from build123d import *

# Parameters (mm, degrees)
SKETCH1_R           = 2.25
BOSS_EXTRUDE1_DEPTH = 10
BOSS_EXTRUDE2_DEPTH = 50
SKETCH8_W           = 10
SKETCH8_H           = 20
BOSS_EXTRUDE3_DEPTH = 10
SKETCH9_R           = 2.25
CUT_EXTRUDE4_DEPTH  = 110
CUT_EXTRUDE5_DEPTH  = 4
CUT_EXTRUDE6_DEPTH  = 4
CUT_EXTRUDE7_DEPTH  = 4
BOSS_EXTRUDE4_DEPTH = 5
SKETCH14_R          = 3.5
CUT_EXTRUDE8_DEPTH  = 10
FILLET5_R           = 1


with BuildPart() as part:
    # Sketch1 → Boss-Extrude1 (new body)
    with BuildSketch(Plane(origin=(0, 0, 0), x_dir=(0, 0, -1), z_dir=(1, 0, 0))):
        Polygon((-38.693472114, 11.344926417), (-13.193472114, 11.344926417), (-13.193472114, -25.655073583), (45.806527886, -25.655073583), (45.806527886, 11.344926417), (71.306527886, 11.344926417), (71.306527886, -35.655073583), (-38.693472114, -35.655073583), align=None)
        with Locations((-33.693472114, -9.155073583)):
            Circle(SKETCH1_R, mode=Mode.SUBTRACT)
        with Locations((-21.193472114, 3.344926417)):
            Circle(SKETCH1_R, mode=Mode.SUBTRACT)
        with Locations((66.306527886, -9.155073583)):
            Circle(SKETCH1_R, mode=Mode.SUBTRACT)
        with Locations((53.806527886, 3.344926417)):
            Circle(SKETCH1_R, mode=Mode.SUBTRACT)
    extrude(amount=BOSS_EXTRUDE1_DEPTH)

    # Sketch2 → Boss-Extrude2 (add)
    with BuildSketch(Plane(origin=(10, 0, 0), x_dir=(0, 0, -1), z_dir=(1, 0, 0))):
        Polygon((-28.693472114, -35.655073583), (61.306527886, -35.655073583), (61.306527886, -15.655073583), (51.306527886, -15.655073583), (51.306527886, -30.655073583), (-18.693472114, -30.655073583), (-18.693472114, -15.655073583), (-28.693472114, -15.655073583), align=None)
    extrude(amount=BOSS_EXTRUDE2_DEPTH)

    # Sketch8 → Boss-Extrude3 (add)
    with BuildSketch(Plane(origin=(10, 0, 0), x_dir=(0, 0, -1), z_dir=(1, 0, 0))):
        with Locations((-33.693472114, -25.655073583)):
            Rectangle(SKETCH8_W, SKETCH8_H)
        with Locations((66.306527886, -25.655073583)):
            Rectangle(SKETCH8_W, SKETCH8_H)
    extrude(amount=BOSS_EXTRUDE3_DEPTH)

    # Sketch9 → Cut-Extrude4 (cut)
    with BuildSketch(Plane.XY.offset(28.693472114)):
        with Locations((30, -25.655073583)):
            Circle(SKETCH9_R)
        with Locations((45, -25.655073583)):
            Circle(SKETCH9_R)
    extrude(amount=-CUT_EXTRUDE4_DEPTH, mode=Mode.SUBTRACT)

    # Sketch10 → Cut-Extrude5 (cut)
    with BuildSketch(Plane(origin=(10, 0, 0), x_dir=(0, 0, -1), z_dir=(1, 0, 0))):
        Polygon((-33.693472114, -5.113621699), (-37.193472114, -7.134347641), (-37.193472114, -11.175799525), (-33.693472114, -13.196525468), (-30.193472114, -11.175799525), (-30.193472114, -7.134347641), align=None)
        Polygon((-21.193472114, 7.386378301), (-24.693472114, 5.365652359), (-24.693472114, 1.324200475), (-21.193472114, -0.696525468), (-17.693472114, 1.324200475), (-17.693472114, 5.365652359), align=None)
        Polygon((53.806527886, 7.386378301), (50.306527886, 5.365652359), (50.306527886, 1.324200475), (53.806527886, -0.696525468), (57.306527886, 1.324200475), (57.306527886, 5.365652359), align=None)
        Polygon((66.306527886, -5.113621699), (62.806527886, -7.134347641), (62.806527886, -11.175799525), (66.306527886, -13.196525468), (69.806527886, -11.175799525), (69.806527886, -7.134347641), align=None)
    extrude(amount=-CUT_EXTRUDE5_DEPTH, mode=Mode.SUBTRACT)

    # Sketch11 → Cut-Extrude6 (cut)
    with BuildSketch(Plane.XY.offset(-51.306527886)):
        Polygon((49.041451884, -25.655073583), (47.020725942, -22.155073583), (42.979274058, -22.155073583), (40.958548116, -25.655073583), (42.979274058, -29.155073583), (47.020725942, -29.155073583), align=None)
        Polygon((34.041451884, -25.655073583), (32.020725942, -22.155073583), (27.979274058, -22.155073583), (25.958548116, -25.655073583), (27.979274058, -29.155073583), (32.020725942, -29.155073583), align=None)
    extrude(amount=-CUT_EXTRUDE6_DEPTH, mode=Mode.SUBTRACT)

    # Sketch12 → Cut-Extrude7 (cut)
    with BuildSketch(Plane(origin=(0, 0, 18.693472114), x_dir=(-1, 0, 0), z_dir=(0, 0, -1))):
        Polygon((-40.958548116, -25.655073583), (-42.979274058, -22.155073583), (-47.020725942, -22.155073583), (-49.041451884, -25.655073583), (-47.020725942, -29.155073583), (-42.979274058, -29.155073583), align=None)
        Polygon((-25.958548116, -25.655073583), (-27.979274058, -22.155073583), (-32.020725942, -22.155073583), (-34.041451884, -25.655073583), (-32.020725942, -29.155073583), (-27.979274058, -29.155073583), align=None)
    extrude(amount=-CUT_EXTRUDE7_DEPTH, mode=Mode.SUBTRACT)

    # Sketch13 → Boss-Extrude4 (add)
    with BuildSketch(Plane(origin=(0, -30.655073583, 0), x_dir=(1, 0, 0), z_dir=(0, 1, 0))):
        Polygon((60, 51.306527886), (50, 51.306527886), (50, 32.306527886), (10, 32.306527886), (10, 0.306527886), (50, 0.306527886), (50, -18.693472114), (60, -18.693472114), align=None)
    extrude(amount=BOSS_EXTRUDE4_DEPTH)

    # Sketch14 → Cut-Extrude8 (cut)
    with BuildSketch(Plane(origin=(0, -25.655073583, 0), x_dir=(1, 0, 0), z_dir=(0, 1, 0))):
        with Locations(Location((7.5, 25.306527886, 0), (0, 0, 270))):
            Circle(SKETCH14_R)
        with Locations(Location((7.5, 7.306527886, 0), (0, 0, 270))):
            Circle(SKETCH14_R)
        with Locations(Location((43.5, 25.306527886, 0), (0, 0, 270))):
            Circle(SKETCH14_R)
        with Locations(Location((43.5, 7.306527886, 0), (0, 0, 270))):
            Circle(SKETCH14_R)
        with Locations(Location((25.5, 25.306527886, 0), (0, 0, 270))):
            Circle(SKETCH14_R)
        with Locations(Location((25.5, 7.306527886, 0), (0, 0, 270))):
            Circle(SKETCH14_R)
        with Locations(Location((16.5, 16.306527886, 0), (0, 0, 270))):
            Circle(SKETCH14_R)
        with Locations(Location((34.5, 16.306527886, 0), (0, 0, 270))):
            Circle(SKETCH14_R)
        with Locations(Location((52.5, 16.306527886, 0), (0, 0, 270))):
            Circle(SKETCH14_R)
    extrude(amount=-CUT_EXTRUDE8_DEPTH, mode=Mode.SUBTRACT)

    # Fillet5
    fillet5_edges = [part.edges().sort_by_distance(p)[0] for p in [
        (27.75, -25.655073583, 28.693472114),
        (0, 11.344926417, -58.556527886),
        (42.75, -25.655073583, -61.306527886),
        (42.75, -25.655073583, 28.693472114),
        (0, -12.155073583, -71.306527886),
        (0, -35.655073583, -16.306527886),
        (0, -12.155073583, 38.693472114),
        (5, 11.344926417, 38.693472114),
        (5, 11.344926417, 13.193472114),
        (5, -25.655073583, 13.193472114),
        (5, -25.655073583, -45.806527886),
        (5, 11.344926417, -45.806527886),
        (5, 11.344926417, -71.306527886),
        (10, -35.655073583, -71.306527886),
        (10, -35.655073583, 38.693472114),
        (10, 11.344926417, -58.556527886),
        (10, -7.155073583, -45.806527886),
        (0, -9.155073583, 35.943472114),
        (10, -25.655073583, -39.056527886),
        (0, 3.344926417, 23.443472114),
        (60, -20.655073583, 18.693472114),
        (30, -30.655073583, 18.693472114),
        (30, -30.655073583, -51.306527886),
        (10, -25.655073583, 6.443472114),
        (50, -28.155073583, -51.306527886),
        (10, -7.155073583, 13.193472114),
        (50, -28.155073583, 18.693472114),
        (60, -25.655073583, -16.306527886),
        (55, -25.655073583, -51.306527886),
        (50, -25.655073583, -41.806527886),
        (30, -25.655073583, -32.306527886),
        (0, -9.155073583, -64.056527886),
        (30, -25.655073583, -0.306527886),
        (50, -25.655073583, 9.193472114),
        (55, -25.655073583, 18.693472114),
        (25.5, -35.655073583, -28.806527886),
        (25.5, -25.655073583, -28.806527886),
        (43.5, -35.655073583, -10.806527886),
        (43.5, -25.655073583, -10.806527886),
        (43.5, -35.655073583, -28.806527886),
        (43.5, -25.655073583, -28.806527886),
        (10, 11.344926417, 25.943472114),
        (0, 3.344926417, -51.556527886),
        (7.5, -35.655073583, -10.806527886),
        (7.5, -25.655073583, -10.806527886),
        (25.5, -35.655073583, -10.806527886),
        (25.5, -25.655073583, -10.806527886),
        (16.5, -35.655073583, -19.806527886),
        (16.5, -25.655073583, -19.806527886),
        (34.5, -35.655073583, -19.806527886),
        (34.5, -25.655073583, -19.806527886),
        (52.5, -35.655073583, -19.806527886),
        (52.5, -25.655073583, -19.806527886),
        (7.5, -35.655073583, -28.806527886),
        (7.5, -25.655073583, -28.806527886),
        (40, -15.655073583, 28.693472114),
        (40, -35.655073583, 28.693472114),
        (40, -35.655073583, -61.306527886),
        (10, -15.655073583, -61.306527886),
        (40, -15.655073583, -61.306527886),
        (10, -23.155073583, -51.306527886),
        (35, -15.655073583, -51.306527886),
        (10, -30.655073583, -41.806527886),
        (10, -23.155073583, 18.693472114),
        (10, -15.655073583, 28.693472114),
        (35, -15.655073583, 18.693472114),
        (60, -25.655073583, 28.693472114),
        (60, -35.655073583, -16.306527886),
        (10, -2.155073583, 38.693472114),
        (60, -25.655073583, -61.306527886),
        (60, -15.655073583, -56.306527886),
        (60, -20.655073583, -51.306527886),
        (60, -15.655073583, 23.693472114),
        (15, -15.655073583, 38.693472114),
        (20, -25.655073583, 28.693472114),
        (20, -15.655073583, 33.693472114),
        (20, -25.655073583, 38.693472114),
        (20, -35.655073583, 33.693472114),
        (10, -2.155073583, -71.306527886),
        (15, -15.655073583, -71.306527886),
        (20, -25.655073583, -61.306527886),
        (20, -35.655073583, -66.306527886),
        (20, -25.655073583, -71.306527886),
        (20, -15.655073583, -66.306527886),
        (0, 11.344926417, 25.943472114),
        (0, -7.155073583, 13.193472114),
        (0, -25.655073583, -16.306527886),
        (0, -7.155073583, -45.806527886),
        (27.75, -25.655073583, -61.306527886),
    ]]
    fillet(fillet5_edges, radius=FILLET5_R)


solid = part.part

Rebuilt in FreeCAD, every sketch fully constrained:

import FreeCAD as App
import Part
import Sketcher
Q = App.Units.Quantity


def edges_at(feature, points):
    """Names of the edges that pass closest to the given points."""
    edges = feature.Shape.Edges
    near = lambda p: min(range(len(edges)), key=lambda i: edges[i].distToShape(Part.Vertex(*p))[0])
    return sorted({f"Edge{near(p) + 1}" for p in points})

doc = App.newDocument("Part")
params = doc.addObject("Spreadsheet::Sheet", "Params")
for row, (alias, value) in enumerate([
    ("sketch1_diameter", "4.5 mm"),
    ("sketch1_width", "47 mm"),
    ("sketch1_width2", "37 mm"),
    ("sketch1_height", "110 mm"),
    ("sketch1_height2", "59 mm"),
    ("pad1_length", "10 mm"),
    ("sketch2_width", "20 mm"),
    ("sketch2_width2", "15 mm"),
    ("sketch2_height", "90 mm"),
    ("sketch2_height2", "10 mm"),
    ("pad2_length", "50 mm"),
    ("sketch3_width", "20 mm"),
    ("sketch3_height", "10 mm"),
    ("pad3_length", "10 mm"),
    ("sketch4_diameter", "4.5 mm"),
    ("pocket1_length", "110 mm"),
    ("pocket2_length", "4 mm"),
    ("pocket3_length", "4 mm"),
    ("pocket4_length", "4 mm"),
    ("sketch8_width", "10 mm"),
    ("sketch8_width2", "40 mm"),
    ("sketch8_height", "19 mm"),
    ("sketch8_height2", "32 mm"),
    ("pad4_length", "5 mm"),
    ("sketch9_diameter", "7 mm"),
    ("pocket5_length", "10 mm"),
    ("fillet_radius", "1 mm"),
], start=1):
    params.set(f"A{row}", alias)
    params.set(f"B{row}", "=" + value)
    params.setAlias(f"B{row}", alias)

body = doc.addObject("PartDesign::Body", "Body")

# Sketch on YZ plane
sketch1 = body.newObject("Sketcher::SketchObject", "Sketch")
sketch1.AttachmentSupport = (doc.getObject("YZ_Plane"), [""])
sketch1.MapMode = "FlatFace"
sketch1.addGeometry(Part.LineSegment(App.Vector(11.3, 13.2, 0), App.Vector(11.3, 38.7, 0)), False)
sketch1.addGeometry(Part.LineSegment(App.Vector(11.3, 38.7, 0), App.Vector(-35.7, 38.7, 0)), False)
sketch1.addGeometry(Part.LineSegment(App.Vector(-35.7, 38.7, 0), App.Vector(-35.7, -71.3, 0)), False)
sketch1.addGeometry(Part.LineSegment(App.Vector(-35.7, -71.3, 0), App.Vector(11.3, -71.3, 0)), False)
sketch1.addGeometry(Part.LineSegment(App.Vector(11.3, -71.3, 0), App.Vector(11.3, -45.8, 0)), False)
sketch1.addGeometry(Part.LineSegment(App.Vector(11.3, -45.8, 0), App.Vector(-25.7, -45.8, 0)), False)
sketch1.addGeometry(Part.LineSegment(App.Vector(-25.7, -45.8, 0), App.Vector(-25.7, 13.2, 0)), False)
sketch1.addGeometry(Part.LineSegment(App.Vector(-25.7, 13.2, 0), App.Vector(11.3, 13.2, 0)), False)
sketch1.addGeometry(Part.Circle(App.Vector(-9.2, -66.3, 0), App.Vector(0, 0, 1), 2.2), False)
sketch1.addGeometry(Part.Circle(App.Vector(-9.2, 33.7, 0), App.Vector(0, 0, 1), 2.2), False)
sketch1.addGeometry(Part.Circle(App.Vector(3.3, -53.8, 0), App.Vector(0, 0, 1), 2.2), False)
sketch1.addGeometry(Part.Circle(App.Vector(3.3, 21.2, 0), App.Vector(0, 0, 1), 2.2), False)
sketch1.addConstraint(Sketcher.Constraint("Coincident", 0, 2, 1, 1))
sketch1.addConstraint(Sketcher.Constraint("Coincident", 1, 2, 2, 1))
sketch1.addConstraint(Sketcher.Constraint("Coincident", 2, 2, 3, 1))
sketch1.addConstraint(Sketcher.Constraint("Coincident", 3, 2, 4, 1))
sketch1.addConstraint(Sketcher.Constraint("Coincident", 4, 2, 5, 1))
sketch1.addConstraint(Sketcher.Constraint("Coincident", 5, 2, 6, 1))
sketch1.addConstraint(Sketcher.Constraint("Coincident", 6, 2, 7, 1))
sketch1.addConstraint(Sketcher.Constraint("Coincident", 7, 2, 0, 1))
sketch1.addConstraint(Sketcher.Constraint("Vertical", 0))
sketch1.addConstraint(Sketcher.Constraint("Horizontal", 1))
sketch1.addConstraint(Sketcher.Constraint("Vertical", 2))
sketch1.addConstraint(Sketcher.Constraint("Horizontal", 3))
sketch1.addConstraint(Sketcher.Constraint("Vertical", 4))
sketch1.addConstraint(Sketcher.Constraint("Horizontal", 5))
sketch1.addConstraint(Sketcher.Constraint("Vertical", 6))
sketch1.addConstraint(Sketcher.Constraint("Horizontal", 7))
sketch1.addConstraint(Sketcher.Constraint("Equal", 8, 9))
sketch1.addConstraint(Sketcher.Constraint("Equal", 9, 10))
sketch1.addConstraint(Sketcher.Constraint("Equal", 10, 11))
sketch1.addConstraint(Sketcher.Constraint("Vertical", 8, 3, 9, 3))
sketch1.addConstraint(Sketcher.Constraint("Vertical", 10, 3, 11, 3))
sketch1.addConstraint(Sketcher.Constraint("Vertical", 0, 2, 3, 2))
sketch1.addConstraint(Sketcher.Constraint("Equal", 0, 4))
sketch1.addConstraint(Sketcher.Constraint("Diameter", 8, 4.5))
sketch1.addConstraint(Sketcher.Constraint("DistanceX", 1, 2, 1, 1, 47.0))
sketch1.addConstraint(Sketcher.Constraint("DistanceX", 5, 2, 5, 1, 37.0))
sketch1.addConstraint(Sketcher.Constraint("DistanceY", 2, 2, 2, 1, 110.0))
sketch1.addConstraint(Sketcher.Constraint("DistanceY", 6, 1, 6, 2, 59.0))
sketch1.addConstraint(Sketcher.Constraint("DistanceY", 8, 3, 9, 3, 100.0))
sketch1.addConstraint(Sketcher.Constraint("DistanceY", 10, 3, 11, 3, 75.0))
sketch1.addConstraint(Sketcher.Constraint("DistanceX", 11, 3, 0, 2, 8.0))
sketch1.addConstraint(Sketcher.Constraint("DistanceY", 9, 3, 0, 2, 5.0))
sketch1.addConstraint(Sketcher.Constraint("DistanceY", 10, 3, 4, 2, 8.0))
sketch1.addConstraint(Sketcher.Constraint("DistanceX", 8, 3, 10, 3, 12.5))
sketch1.addConstraint(Sketcher.Constraint("DistanceX", 8, 3, -1, 1, 9.155074))
sketch1.addConstraint(Sketcher.Constraint("DistanceY", 8, 3, -1, 1, 66.306528))
sketch1.setExpression("Constraints[23]", "Params.sketch1_diameter")
sketch1.setExpression("Constraints[24]", "Params.sketch1_width")
sketch1.setExpression("Constraints[25]", "Params.sketch1_width2")
sketch1.setExpression("Constraints[26]", "Params.sketch1_height")
sketch1.setExpression("Constraints[27]", "Params.sketch1_height2")
pad1 = body.newObject("PartDesign::Pad", "Pad")
pad1.Profile = sketch1
pad1.setExpression("Length", "Params.pad1_length")

# Sketch on YZ plane
sketch2 = body.newObject("Sketcher::SketchObject", "Sketch001")
sketch2.AttachmentSupport = (doc.getObject("YZ_Plane"), [""])
sketch2.MapMode = "FlatFace"
sketch2.AttachmentOffset = App.Placement(App.Vector(0, 0, 10), App.Rotation())
sketch2.addGeometry(Part.LineSegment(App.Vector(-36, 29, 0), App.Vector(-36, -61, 0)), False)
sketch2.addGeometry(Part.LineSegment(App.Vector(-36, -61, 0), App.Vector(-16, -61, 0)), False)
sketch2.addGeometry(Part.LineSegment(App.Vector(-16, -61, 0), App.Vector(-16, -51, 0)), False)
sketch2.addGeometry(Part.LineSegment(App.Vector(-16, -51, 0), App.Vector(-31, -51, 0)), False)
sketch2.addGeometry(Part.LineSegment(App.Vector(-31, -51, 0), App.Vector(-31, 19, 0)), False)
sketch2.addGeometry(Part.LineSegment(App.Vector(-31, 19, 0), App.Vector(-16, 19, 0)), False)
sketch2.addGeometry(Part.LineSegment(App.Vector(-16, 19, 0), App.Vector(-16, 29, 0)), False)
sketch2.addGeometry(Part.LineSegment(App.Vector(-16, 29, 0), App.Vector(-36, 29, 0)), False)
sketch2.addConstraint(Sketcher.Constraint("Coincident", 0, 2, 1, 1))
sketch2.addConstraint(Sketcher.Constraint("Coincident", 1, 2, 2, 1))
sketch2.addConstraint(Sketcher.Constraint("Coincident", 2, 2, 3, 1))
sketch2.addConstraint(Sketcher.Constraint("Coincident", 3, 2, 4, 1))
sketch2.addConstraint(Sketcher.Constraint("Coincident", 4, 2, 5, 1))
sketch2.addConstraint(Sketcher.Constraint("Coincident", 5, 2, 6, 1))
sketch2.addConstraint(Sketcher.Constraint("Coincident", 6, 2, 7, 1))
sketch2.addConstraint(Sketcher.Constraint("Coincident", 7, 2, 0, 1))
sketch2.addConstraint(Sketcher.Constraint("Vertical", 0))
sketch2.addConstraint(Sketcher.Constraint("Horizontal", 1))
sketch2.addConstraint(Sketcher.Constraint("Vertical", 2))
sketch2.addConstraint(Sketcher.Constraint("Horizontal", 3))
sketch2.addConstraint(Sketcher.Constraint("Vertical", 4))
sketch2.addConstraint(Sketcher.Constraint("Horizontal", 5))
sketch2.addConstraint(Sketcher.Constraint("Vertical", 6))
sketch2.addConstraint(Sketcher.Constraint("Horizontal", 7))
sketch2.addConstraint(Sketcher.Constraint("Vertical", 2, 2, 5, 2))
sketch2.addConstraint(Sketcher.Constraint("Equal", 2, 6))
sketch2.addConstraint(Sketcher.Constraint("DistanceX", 1, 1, 1, 2, 20.0))
sketch2.addConstraint(Sketcher.Constraint("DistanceX", 3, 2, 3, 1, 15.0))
sketch2.addConstraint(Sketcher.Constraint("DistanceY", 0, 2, 0, 1, 90.0))
sketch2.addConstraint(Sketcher.Constraint("DistanceY", 2, 1, 2, 2, 10.0))
sketch2.addConstraint(Sketcher.Constraint("DistanceX", 0, 2, -1, 1, 35.655074))
sketch2.addConstraint(Sketcher.Constraint("DistanceY", 0, 2, -1, 1, 61.306528))
sketch2.setExpression("Constraints[18]", "Params.sketch2_width")
sketch2.setExpression("Constraints[19]", "Params.sketch2_width2")
sketch2.setExpression("Constraints[20]", "Params.sketch2_height")
sketch2.setExpression("Constraints[21]", "Params.sketch2_height2")
pad2 = body.newObject("PartDesign::Pad", "Pad001")
pad2.Profile = sketch2
pad2.setExpression("Length", "Params.pad2_length")

# Sketch on YZ plane
sketch3 = body.newObject("Sketcher::SketchObject", "Sketch002")
sketch3.AttachmentSupport = (doc.getObject("YZ_Plane"), [""])
sketch3.MapMode = "FlatFace"
sketch3.AttachmentOffset = App.Placement(App.Vector(0, 0, 10), App.Rotation())
sketch3.addGeometry(Part.LineSegment(App.Vector(-16, 39, 0), App.Vector(-36, 39, 0)), False)
sketch3.addGeometry(Part.LineSegment(App.Vector(-36, 39, 0), App.Vector(-36, 29, 0)), False)
sketch3.addGeometry(Part.LineSegment(App.Vector(-36, 29, 0), App.Vector(-16, 29, 0)), False)
sketch3.addGeometry(Part.LineSegment(App.Vector(-16, 29, 0), App.Vector(-16, 39, 0)), False)
sketch3.addGeometry(Part.LineSegment(App.Vector(-16, -61, 0), App.Vector(-36, -61, 0)), False)
sketch3.addGeometry(Part.LineSegment(App.Vector(-36, -61, 0), App.Vector(-36, -71, 0)), False)
sketch3.addGeometry(Part.LineSegment(App.Vector(-36, -71, 0), App.Vector(-16, -71, 0)), False)
sketch3.addGeometry(Part.LineSegment(App.Vector(-16, -71, 0), App.Vector(-16, -61, 0)), False)
sketch3.addConstraint(Sketcher.Constraint("Coincident", 0, 2, 1, 1))
sketch3.addConstraint(Sketcher.Constraint("Coincident", 1, 2, 2, 1))
sketch3.addConstraint(Sketcher.Constraint("Coincident", 2, 2, 3, 1))
sketch3.addConstraint(Sketcher.Constraint("Coincident", 3, 2, 0, 1))
sketch3.addConstraint(Sketcher.Constraint("Coincident", 4, 2, 5, 1))
sketch3.addConstraint(Sketcher.Constraint("Coincident", 5, 2, 6, 1))
sketch3.addConstraint(Sketcher.Constraint("Coincident", 6, 2, 7, 1))
sketch3.addConstraint(Sketcher.Constraint("Coincident", 7, 2, 4, 1))
sketch3.addConstraint(Sketcher.Constraint("Horizontal", 0))
sketch3.addConstraint(Sketcher.Constraint("Vertical", 1))
sketch3.addConstraint(Sketcher.Constraint("Horizontal", 2))
sketch3.addConstraint(Sketcher.Constraint("Vertical", 3))
sketch3.addConstraint(Sketcher.Constraint("Horizontal", 4))
sketch3.addConstraint(Sketcher.Constraint("Vertical", 5))
sketch3.addConstraint(Sketcher.Constraint("Horizontal", 6))
sketch3.addConstraint(Sketcher.Constraint("Vertical", 7))
sketch3.addConstraint(Sketcher.Constraint("Vertical", 1, 2, 4, 2))
sketch3.addConstraint(Sketcher.Constraint("Vertical", 3, 2, 6, 2))
sketch3.addConstraint(Sketcher.Constraint("Equal", 3, 5))
sketch3.addConstraint(Sketcher.Constraint("DistanceX", 0, 2, 0, 1, 20.0))
sketch3.addConstraint(Sketcher.Constraint("DistanceY", 1, 2, 1, 1, 10.0))
sketch3.addConstraint(Sketcher.Constraint("DistanceY", 4, 2, 1, 2, 90.0))
sketch3.addConstraint(Sketcher.Constraint("DistanceX", 0, 2, -1, 1, 35.655074))
sketch3.addConstraint(Sketcher.Constraint("DistanceY", -1, 1, 0, 2, 38.693472))
sketch3.setExpression("Constraints[19]", "Params.sketch3_width")
sketch3.setExpression("Constraints[20]", "Params.sketch3_height")
pad3 = body.newObject("PartDesign::Pad", "Pad002")
pad3.Profile = sketch3
pad3.setExpression("Length", "Params.pad3_length")

# Sketch on XY plane
sketch4 = body.newObject("Sketcher::SketchObject", "Sketch003")
sketch4.AttachmentSupport = (doc.getObject("XY_Plane"), [""])
sketch4.MapMode = "FlatFace"
sketch4.AttachmentOffset = App.Placement(App.Vector(0, 0, 28.693472), App.Rotation())
sketch4.addGeometry(Part.Circle(App.Vector(30, -25.7, 0), App.Vector(0, 0, 1), 2.2), False)
sketch4.addGeometry(Part.Circle(App.Vector(45, -25.7, 0), App.Vector(0, 0, 1), 2.2), False)
sketch4.addConstraint(Sketcher.Constraint("Equal", 0, 1))
sketch4.addConstraint(Sketcher.Constraint("Horizontal", 0, 3, 1, 3))
sketch4.addConstraint(Sketcher.Constraint("Diameter", 0, 4.5))
sketch4.addConstraint(Sketcher.Constraint("DistanceX", -1, 1, 0, 3, 30.0))
sketch4.addConstraint(Sketcher.Constraint("DistanceX", -1, 1, 1, 3, 45.0))
sketch4.addConstraint(Sketcher.Constraint("DistanceY", 0, 3, -1, 1, 25.655074))
sketch4.setExpression("Constraints[2]", "Params.sketch4_diameter")
pocket1 = body.newObject("PartDesign::Pocket", "Pocket")
pocket1.Profile = sketch4
pocket1.setExpression("Length", "Params.pocket1_length")

# Sketch on YZ plane
sketch5 = body.newObject("Sketcher::SketchObject", "Sketch004")
sketch5.AttachmentSupport = (doc.getObject("YZ_Plane"), [""])
sketch5.MapMode = "FlatFace"
sketch5.AttachmentOffset = App.Placement(App.Vector(0, 0, 10), App.Rotation())
sketch5.addGeometry(Part.LineSegment(App.Vector(-5.1, 33.7, 0), App.Vector(-7.1, 37.2, 0)), False)
sketch5.addGeometry(Part.LineSegment(App.Vector(-7.1, 37.2, 0), App.Vector(-11.2, 37.2, 0)), False)
sketch5.addGeometry(Part.LineSegment(App.Vector(-11.2, 37.2, 0), App.Vector(-13.2, 33.7, 0)), False)
sketch5.addGeometry(Part.LineSegment(App.Vector(-13.2, 33.7, 0), App.Vector(-11.2, 30.2, 0)), False)
sketch5.addGeometry(Part.LineSegment(App.Vector(-11.2, 30.2, 0), App.Vector(-7.1, 30.2, 0)), False)
sketch5.addGeometry(Part.LineSegment(App.Vector(-7.1, 30.2, 0), App.Vector(-5.1, 33.7, 0)), False)
sketch5.addGeometry(Part.LineSegment(App.Vector(7.4, 21.2, 0), App.Vector(5.4, 24.7, 0)), False)
sketch5.addGeometry(Part.LineSegment(App.Vector(5.4, 24.7, 0), App.Vector(1.3, 24.7, 0)), False)
sketch5.addGeometry(Part.LineSegment(App.Vector(1.3, 24.7, 0), App.Vector(-0.7, 21.2, 0)), False)
sketch5.addGeometry(Part.LineSegment(App.Vector(-0.7, 21.2, 0), App.Vector(1.3, 17.7, 0)), False)
sketch5.addGeometry(Part.LineSegment(App.Vector(1.3, 17.7, 0), App.Vector(5.4, 17.7, 0)), False)
sketch5.addGeometry(Part.LineSegment(App.Vector(5.4, 17.7, 0), App.Vector(7.4, 21.2, 0)), False)
sketch5.addGeometry(Part.LineSegment(App.Vector(7.4, -53.8, 0), App.Vector(5.4, -50.3, 0)), False)
sketch5.addGeometry(Part.LineSegment(App.Vector(5.4, -50.3, 0), App.Vector(1.3, -50.3, 0)), False)
sketch5.addGeometry(Part.LineSegment(App.Vector(1.3, -50.3, 0), App.Vector(-0.7, -53.8, 0)), False)
sketch5.addGeometry(Part.LineSegment(App.Vector(-0.7, -53.8, 0), App.Vector(1.3, -57.3, 0)), False)
sketch5.addGeometry(Part.LineSegment(App.Vector(1.3, -57.3, 0), App.Vector(5.4, -57.3, 0)), False)
sketch5.addGeometry(Part.LineSegment(App.Vector(5.4, -57.3, 0), App.Vector(7.4, -53.8, 0)), False)
sketch5.addGeometry(Part.LineSegment(App.Vector(-5.1, -66.3, 0), App.Vector(-7.1, -62.8, 0)), False)
sketch5.addGeometry(Part.LineSegment(App.Vector(-7.1, -62.8, 0), App.Vector(-11.2, -62.8, 0)), False)
sketch5.addGeometry(Part.LineSegment(App.Vector(-11.2, -62.8, 0), App.Vector(-13.2, -66.3, 0)), False)
sketch5.addGeometry(Part.LineSegment(App.Vector(-13.2, -66.3, 0), App.Vector(-11.2, -69.8, 0)), False)
sketch5.addGeometry(Part.LineSegment(App.Vector(-11.2, -69.8, 0), App.Vector(-7.1, -69.8, 0)), False)
sketch5.addGeometry(Part.LineSegment(App.Vector(-7.1, -69.8, 0), App.Vector(-5.1, -66.3, 0)), False)
sketch5.addConstraint(Sketcher.Constraint("Coincident", 0, 2, 1, 1))
sketch5.addConstraint(Sketcher.Constraint("Coincident", 1, 2, 2, 1))
sketch5.addConstraint(Sketcher.Constraint("Coincident", 2, 2, 3, 1))
sketch5.addConstraint(Sketcher.Constraint("Coincident", 3, 2, 4, 1))
sketch5.addConstraint(Sketcher.Constraint("Coincident", 4, 2, 5, 1))
sketch5.addConstraint(Sketcher.Constraint("Coincident", 5, 2, 0, 1))
sketch5.addConstraint(Sketcher.Constraint("Coincident", 6, 2, 7, 1))
sketch5.addConstraint(Sketcher.Constraint("Coincident", 7, 2, 8, 1))
sketch5.addConstraint(Sketcher.Constraint("Coincident", 8, 2, 9, 1))
sketch5.addConstraint(Sketcher.Constraint("Coincident", 9, 2, 10, 1))
sketch5.addConstraint(Sketcher.Constraint("Coincident", 10, 2, 11, 1))
sketch5.addConstraint(Sketcher.Constraint("Coincident", 11, 2, 6, 1))
sketch5.addConstraint(Sketcher.Constraint("Coincident", 12, 2, 13, 1))
sketch5.addConstraint(Sketcher.Constraint("Coincident", 13, 2, 14, 1))
sketch5.addConstraint(Sketcher.Constraint("Coincident", 14, 2, 15, 1))
sketch5.addConstraint(Sketcher.Constraint("Coincident", 15, 2, 16, 1))
sketch5.addConstraint(Sketcher.Constraint("Coincident", 16, 2, 17, 1))
sketch5.addConstraint(Sketcher.Constraint("Coincident", 17, 2, 12, 1))
sketch5.addConstraint(Sketcher.Constraint("Coincident", 18, 2, 19, 1))
sketch5.addConstraint(Sketcher.Constraint("Coincident", 19, 2, 20, 1))
sketch5.addConstraint(Sketcher.Constraint("Coincident", 20, 2, 21, 1))
sketch5.addConstraint(Sketcher.Constraint("Coincident", 21, 2, 22, 1))
sketch5.addConstraint(Sketcher.Constraint("Coincident", 22, 2, 23, 1))
sketch5.addConstraint(Sketcher.Constraint("Coincident", 23, 2, 18, 1))
sketch5.addConstraint(Sketcher.Constraint("Horizontal", 1))
sketch5.addConstraint(Sketcher.Constraint("Horizontal", 4))
sketch5.addConstraint(Sketcher.Constraint("Horizontal", 7))
sketch5.addConstraint(Sketcher.Constraint("Horizontal", 10))
sketch5.addConstraint(Sketcher.Constraint("Horizontal", 13))
sketch5.addConstraint(Sketcher.Constraint("Horizontal", 16))
sketch5.addConstraint(Sketcher.Constraint("Horizontal", 19))
sketch5.addConstraint(Sketcher.Constraint("Horizontal", 22))
sketch5.addConstraint(Sketcher.Constraint("Parallel", 0, 3))
sketch5.addConstraint(Sketcher.Constraint("Parallel", 2, 5))
sketch5.addConstraint(Sketcher.Constraint("Parallel", 3, 6))
sketch5.addConstraint(Sketcher.Constraint("Parallel", 5, 8))
sketch5.addConstraint(Sketcher.Constraint("Parallel", 6, 9))
sketch5.addConstraint(Sketcher.Constraint("Parallel", 8, 11))
sketch5.addConstraint(Sketcher.Constraint("Parallel", 9, 12))
sketch5.addConstraint(Sketcher.Constraint("Parallel", 11, 14))
sketch5.addConstraint(Sketcher.Constraint("Parallel", 12, 15))
sketch5.addConstraint(Sketcher.Constraint("Parallel", 14, 17))
sketch5.addConstraint(Sketcher.Constraint("Parallel", 15, 18))
sketch5.addConstraint(Sketcher.Constraint("Parallel", 17, 20))
sketch5.addConstraint(Sketcher.Constraint("Parallel", 18, 21))
sketch5.addConstraint(Sketcher.Constraint("Parallel", 20, 23))
sketch5.addConstraint(Sketcher.Constraint("Horizontal", 2, 2, 5, 2))
sketch5.addConstraint(Sketcher.Constraint("Horizontal", 8, 2, 11, 2))
sketch5.addConstraint(Sketcher.Constraint("Horizontal", 14, 2, 17, 2))
sketch5.addConstraint(Sketcher.Constraint("Horizontal", 20, 2, 23, 2))
sketch5.addConstraint(Sketcher.Constraint("Vertical", 1, 2, 3, 2))
sketch5.addConstraint(Sketcher.Constraint("Vertical", 0, 2, 4, 2))
sketch5.addConstraint(Sketcher.Constraint("Vertical", 7, 2, 9, 2))
sketch5.addConstraint(Sketcher.Constraint("Vertical", 10, 2, 12, 2))
sketch5.addConstraint(Sketcher.Constraint("Vertical", 9, 2, 13, 2))
sketch5.addConstraint(Sketcher.Constraint("Vertical", 8, 2, 14, 2))
sketch5.addConstraint(Sketcher.Constraint("Vertical", 13, 2, 15, 2))
sketch5.addConstraint(Sketcher.Constraint("Vertical", 4, 2, 18, 2))
sketch5.addConstraint(Sketcher.Constraint("Vertical", 3, 2, 19, 2))
sketch5.addConstraint(Sketcher.Constraint("Vertical", 2, 2, 20, 2))
sketch5.addConstraint(Sketcher.Constraint("Vertical", 19, 2, 21, 2))
sketch5.addConstraint(Sketcher.Constraint("Equal", 4, 7))
sketch5.addConstraint(Sketcher.Constraint("Equal", 5, 6))
sketch5.addConstraint(Sketcher.Constraint("Angle", 0, Q("120 deg")))
sketch5.addConstraint(Sketcher.Constraint("DistanceY", 3, 2, 1, 2, 7.0))
sketch5.addConstraint(Sketcher.Constraint("DistanceY", 6, 2, 5, 2, 9.0))
sketch5.addConstraint(Sketcher.Constraint("DistanceY", 12, 2, 10, 2, 68.0))
sketch5.addConstraint(Sketcher.Constraint("DistanceY", 18, 2, 14, 2, 9.0))
sketch5.addConstraint(Sketcher.Constraint("DistanceX", 4, 2, 6, 2, 12.5))
sketch5.addConstraint(Sketcher.Constraint("DistanceX", 1, 2, 1, 1, 4.041452))
sketch5.addConstraint(Sketcher.Constraint("DistanceX", 1, 2, -1, 1, 11.1758))
sketch5.addConstraint(Sketcher.Constraint("DistanceY", -1, 1, 0, 2, 37.193472))
pocket2 = body.newObject("PartDesign::Pocket", "Pocket001")
pocket2.Profile = sketch5
pocket2.setExpression("Length", "Params.pocket2_length")

# Sketch on XY plane
sketch6 = body.newObject("Sketcher::SketchObject", "Sketch005")
sketch6.AttachmentSupport = (doc.getObject("XY_Plane"), [""])
sketch6.MapMode = "FlatFace"
sketch6.AttachmentOffset = App.Placement(App.Vector(0, 0, -51.306528), App.Rotation())
sketch6.addGeometry(Part.LineSegment(App.Vector(49, -25.7, 0), App.Vector(47, -22.2, 0)), False)
sketch6.addGeometry(Part.LineSegment(App.Vector(47, -22.2, 0), App.Vector(43, -22.2, 0)), False)
sketch6.addGeometry(Part.LineSegment(App.Vector(43, -22.2, 0), App.Vector(41, -25.7, 0)), False)
sketch6.addGeometry(Part.LineSegment(App.Vector(41, -25.7, 0), App.Vector(43, -29.2, 0)), False)
sketch6.addGeometry(Part.LineSegment(App.Vector(43, -29.2, 0), App.Vector(47, -29.2, 0)), False)
sketch6.addGeometry(Part.LineSegment(App.Vector(47, -29.2, 0), App.Vector(49, -25.7, 0)), False)
sketch6.addGeometry(Part.LineSegment(App.Vector(34, -25.7, 0), App.Vector(32, -22.2, 0)), False)
sketch6.addGeometry(Part.LineSegment(App.Vector(32, -22.2, 0), App.Vector(28, -22.2, 0)), False)
sketch6.addGeometry(Part.LineSegment(App.Vector(28, -22.2, 0), App.Vector(26, -25.7, 0)), False)
sketch6.addGeometry(Part.LineSegment(App.Vector(26, -25.7, 0), App.Vector(28, -29.2, 0)), False)
sketch6.addGeometry(Part.LineSegment(App.Vector(28, -29.2, 0), App.Vector(32, -29.2, 0)), False)
sketch6.addGeometry(Part.LineSegment(App.Vector(32, -29.2, 0), App.Vector(34, -25.7, 0)), False)
sketch6.addConstraint(Sketcher.Constraint("Coincident", 0, 2, 1, 1))
sketch6.addConstraint(Sketcher.Constraint("Coincident", 1, 2, 2, 1))
sketch6.addConstraint(Sketcher.Constraint("Coincident", 2, 2, 3, 1))
sketch6.addConstraint(Sketcher.Constraint("Coincident", 3, 2, 4, 1))
sketch6.addConstraint(Sketcher.Constraint("Coincident", 4, 2, 5, 1))
sketch6.addConstraint(Sketcher.Constraint("Coincident", 5, 2, 0, 1))
sketch6.addConstraint(Sketcher.Constraint("Coincident", 6, 2, 7, 1))
sketch6.addConstraint(Sketcher.Constraint("Coincident", 7, 2, 8, 1))
sketch6.addConstraint(Sketcher.Constraint("Coincident", 8, 2, 9, 1))
sketch6.addConstraint(Sketcher.Constraint("Coincident", 9, 2, 10, 1))
sketch6.addConstraint(Sketcher.Constraint("Coincident", 10, 2, 11, 1))
sketch6.addConstraint(Sketcher.Constraint("Coincident", 11, 2, 6, 1))
sketch6.addConstraint(Sketcher.Constraint("Horizontal", 1))
sketch6.addConstraint(Sketcher.Constraint("Horizontal", 4))
sketch6.addConstraint(Sketcher.Constraint("Horizontal", 7))
sketch6.addConstraint(Sketcher.Constraint("Horizontal", 10))
sketch6.addConstraint(Sketcher.Constraint("Parallel", 0, 3))
sketch6.addConstraint(Sketcher.Constraint("Parallel", 2, 5))
sketch6.addConstraint(Sketcher.Constraint("Parallel", 3, 6))
sketch6.addConstraint(Sketcher.Constraint("Parallel", 5, 8))
sketch6.addConstraint(Sketcher.Constraint("Parallel", 6, 9))
sketch6.addConstraint(Sketcher.Constraint("Parallel", 8, 11))
sketch6.addConstraint(Sketcher.Constraint("Horizontal", 2, 2, 5, 2))
sketch6.addConstraint(Sketcher.Constraint("Horizontal", 1, 2, 6, 2))
sketch6.addConstraint(Sketcher.Constraint("Horizontal", 5, 2, 8, 2))
sketch6.addConstraint(Sketcher.Constraint("Horizontal", 4, 2, 9, 2))
sketch6.addConstraint(Sketcher.Constraint("Horizontal", 8, 2, 11, 2))
sketch6.addConstraint(Sketcher.Constraint("Vertical", 1, 2, 3, 2))
sketch6.addConstraint(Sketcher.Constraint("Vertical", 0, 2, 4, 2))
sketch6.addConstraint(Sketcher.Constraint("Equal", 4, 7))
sketch6.addConstraint(Sketcher.Constraint("Angle", 0, Q("120 deg")))
sketch6.addConstraint(Sketcher.Constraint("DistanceY", 3, 2, 1, 2, 7.0))
sketch6.addConstraint(Sketcher.Constraint("DistanceX", 6, 2, 0, 2, 15.0))
sketch6.addConstraint(Sketcher.Constraint("DistanceX", 1, 2, 1, 1, 4.041452))
sketch6.addConstraint(Sketcher.Constraint("DistanceX", -1, 1, 2, 2, 40.958548))
sketch6.addConstraint(Sketcher.Constraint("DistanceY", 0, 2, -1, 1, 22.155074))
pocket3 = body.newObject("PartDesign::Pocket", "Pocket002")
pocket3.Profile = sketch6
pocket3.setExpression("Length", "Params.pocket3_length")

# Sketch on XY plane
sketch7 = body.newObject("Sketcher::SketchObject", "Sketch006")
sketch7.AttachmentSupport = (doc.getObject("XY_Plane"), [""])
sketch7.MapMode = "FlatFace"
sketch7.AttachmentOffset = App.Placement(App.Vector(0, 0, 18.693472), App.Rotation())
sketch7.addGeometry(Part.LineSegment(App.Vector(41, -25.7, 0), App.Vector(43, -22.2, 0)), False)
sketch7.addGeometry(Part.LineSegment(App.Vector(43, -22.2, 0), App.Vector(47, -22.2, 0)), False)
sketch7.addGeometry(Part.LineSegment(App.Vector(47, -22.2, 0), App.Vector(49, -25.7, 0)), False)
sketch7.addGeometry(Part.LineSegment(App.Vector(49, -25.7, 0), App.Vector(47, -29.2, 0)), False)
sketch7.addGeometry(Part.LineSegment(App.Vector(47, -29.2, 0), App.Vector(43, -29.2, 0)), False)
sketch7.addGeometry(Part.LineSegment(App.Vector(43, -29.2, 0), App.Vector(41, -25.7, 0)), False)
sketch7.addGeometry(Part.LineSegment(App.Vector(26, -25.7, 0), App.Vector(28, -22.2, 0)), False)
sketch7.addGeometry(Part.LineSegment(App.Vector(28, -22.2, 0), App.Vector(32, -22.2, 0)), False)
sketch7.addGeometry(Part.LineSegment(App.Vector(32, -22.2, 0), App.Vector(34, -25.7, 0)), False)
sketch7.addGeometry(Part.LineSegment(App.Vector(34, -25.7, 0), App.Vector(32, -29.2, 0)), False)
sketch7.addGeometry(Part.LineSegment(App.Vector(32, -29.2, 0), App.Vector(28, -29.2, 0)), False)
sketch7.addGeometry(Part.LineSegment(App.Vector(28, -29.2, 0), App.Vector(26, -25.7, 0)), False)
sketch7.addConstraint(Sketcher.Constraint("Coincident", 0, 2, 1, 1))
sketch7.addConstraint(Sketcher.Constraint("Coincident", 1, 2, 2, 1))
sketch7.addConstraint(Sketcher.Constraint("Coincident", 2, 2, 3, 1))
sketch7.addConstraint(Sketcher.Constraint("Coincident", 3, 2, 4, 1))
sketch7.addConstraint(Sketcher.Constraint("Coincident", 4, 2, 5, 1))
sketch7.addConstraint(Sketcher.Constraint("Coincident", 5, 2, 0, 1))
sketch7.addConstraint(Sketcher.Constraint("Coincident", 6, 2, 7, 1))
sketch7.addConstraint(Sketcher.Constraint("Coincident", 7, 2, 8, 1))
sketch7.addConstraint(Sketcher.Constraint("Coincident", 8, 2, 9, 1))
sketch7.addConstraint(Sketcher.Constraint("Coincident", 9, 2, 10, 1))
sketch7.addConstraint(Sketcher.Constraint("Coincident", 10, 2, 11, 1))
sketch7.addConstraint(Sketcher.Constraint("Coincident", 11, 2, 6, 1))
sketch7.addConstraint(Sketcher.Constraint("Horizontal", 1))
sketch7.addConstraint(Sketcher.Constraint("Horizontal", 4))
sketch7.addConstraint(Sketcher.Constraint("Horizontal", 7))
sketch7.addConstraint(Sketcher.Constraint("Horizontal", 10))
sketch7.addConstraint(Sketcher.Constraint("Parallel", 0, 3))
sketch7.addConstraint(Sketcher.Constraint("Parallel", 2, 5))
sketch7.addConstraint(Sketcher.Constraint("Parallel", 3, 6))
sketch7.addConstraint(Sketcher.Constraint("Parallel", 5, 8))
sketch7.addConstraint(Sketcher.Constraint("Parallel", 6, 9))
sketch7.addConstraint(Sketcher.Constraint("Parallel", 8, 11))
sketch7.addConstraint(Sketcher.Constraint("Horizontal", 2, 2, 5, 2))
sketch7.addConstraint(Sketcher.Constraint("Horizontal", 1, 2, 6, 2))
sketch7.addConstraint(Sketcher.Constraint("Horizontal", 5, 2, 8, 2))
sketch7.addConstraint(Sketcher.Constraint("Horizontal", 4, 2, 9, 2))
sketch7.addConstraint(Sketcher.Constraint("Horizontal", 8, 2, 11, 2))
sketch7.addConstraint(Sketcher.Constraint("Vertical", 1, 2, 3, 2))
sketch7.addConstraint(Sketcher.Constraint("Vertical", 0, 2, 4, 2))
sketch7.addConstraint(Sketcher.Constraint("Equal", 4, 7))
sketch7.addConstraint(Sketcher.Constraint("Angle", 0, Q("60 deg")))
sketch7.addConstraint(Sketcher.Constraint("DistanceY", 3, 2, 1, 2, 7.0))
sketch7.addConstraint(Sketcher.Constraint("DistanceX", 6, 2, 0, 2, 15.0))
sketch7.addConstraint(Sketcher.Constraint("DistanceX", 1, 1, 1, 2, 4.041452))
sketch7.addConstraint(Sketcher.Constraint("DistanceX", -1, 1, 2, 2, 49.041452))
sketch7.addConstraint(Sketcher.Constraint("DistanceY", 0, 2, -1, 1, 22.155074))
pocket4 = body.newObject("PartDesign::Pocket", "Pocket003")
pocket4.Profile = sketch7
pocket4.setExpression("Length", "Params.pocket4_length")
pocket4.Reversed = True

# Sketch on XZ plane
sketch8 = body.newObject("Sketcher::SketchObject", "Sketch007")
sketch8.AttachmentSupport = (doc.getObject("XZ_Plane"), [""])
sketch8.MapMode = "FlatFace"
sketch8.AttachmentOffset = App.Placement(App.Vector(0, 0, 30.655074), App.Rotation())
sketch8.addGeometry(Part.LineSegment(App.Vector(60, -51, 0), App.Vector(50, -51, 0)), False)
sketch8.addGeometry(Part.LineSegment(App.Vector(50, -51, 0), App.Vector(50, -32, 0)), False)
sketch8.addGeometry(Part.LineSegment(App.Vector(50, -32, 0), App.Vector(10, -32, 0)), False)
sketch8.addGeometry(Part.LineSegment(App.Vector(10, -32, 0), App.Vector(10, 0, 0)), False)
sketch8.addGeometry(Part.LineSegment(App.Vector(10, 0, 0), App.Vector(50, 0, 0)), False)
sketch8.addGeometry(Part.LineSegment(App.Vector(50, 0, 0), App.Vector(50, 19, 0)), False)
sketch8.addGeometry(Part.LineSegment(App.Vector(50, 19, 0), App.Vector(60, 19, 0)), False)
sketch8.addGeometry(Part.LineSegment(App.Vector(60, 19, 0), App.Vector(60, -51, 0)), False)
sketch8.addConstraint(Sketcher.Constraint("Coincident", 0, 2, 1, 1))
sketch8.addConstraint(Sketcher.Constraint("Coincident", 1, 2, 2, 1))
sketch8.addConstraint(Sketcher.Constraint("Coincident", 2, 2, 3, 1))
sketch8.addConstraint(Sketcher.Constraint("Coincident", 3, 2, 4, 1))
sketch8.addConstraint(Sketcher.Constraint("Coincident", 4, 2, 5, 1))
sketch8.addConstraint(Sketcher.Constraint("Coincident", 5, 2, 6, 1))
sketch8.addConstraint(Sketcher.Constraint("Coincident", 6, 2, 7, 1))
sketch8.addConstraint(Sketcher.Constraint("Coincident", 7, 2, 0, 1))
sketch8.addConstraint(Sketcher.Constraint("Horizontal", 0))
sketch8.addConstraint(Sketcher.Constraint("Vertical", 1))
sketch8.addConstraint(Sketcher.Constraint("Horizontal", 2))
sketch8.addConstraint(Sketcher.Constraint("Vertical", 3))
sketch8.addConstraint(Sketcher.Constraint("Horizontal", 4))
sketch8.addConstraint(Sketcher.Constraint("Vertical", 5))
sketch8.addConstraint(Sketcher.Constraint("Horizontal", 6))
sketch8.addConstraint(Sketcher.Constraint("Vertical", 7))
sketch8.addConstraint(Sketcher.Constraint("Vertical", 1, 2, 4, 2))
sketch8.addConstraint(Sketcher.Constraint("Equal", 1, 5))
sketch8.addConstraint(Sketcher.Constraint("DistanceX", 0, 2, 0, 1, 10.0))
sketch8.addConstraint(Sketcher.Constraint("DistanceX", 2, 2, 2, 1, 40.0))
sketch8.addConstraint(Sketcher.Constraint("DistanceY", 1, 1, 1, 2, 19.0))
sketch8.addConstraint(Sketcher.Constraint("DistanceY", 3, 1, 3, 2, 32.0))
sketch8.addConstraint(Sketcher.Constraint("DistanceX", -1, 1, 0, 2, 50.0))
sketch8.addConstraint(Sketcher.Constraint("DistanceY", 0, 2, -1, 1, 51.306528))
sketch8.setExpression("Constraints[18]", "Params.sketch8_width")
sketch8.setExpression("Constraints[19]", "Params.sketch8_width2")
sketch8.setExpression("Constraints[20]", "Params.sketch8_height")
sketch8.setExpression("Constraints[21]", "Params.sketch8_height2")
pad4 = body.newObject("PartDesign::Pad", "Pad003")
pad4.Profile = sketch8
pad4.setExpression("Length", "Params.pad4_length")
pad4.Reversed = True

# Sketch on XZ plane
sketch9 = body.newObject("Sketcher::SketchObject", "Sketch008")
sketch9.AttachmentSupport = (doc.getObject("XZ_Plane"), [""])
sketch9.MapMode = "FlatFace"
sketch9.AttachmentOffset = App.Placement(App.Vector(0, 0, 25.655074), App.Rotation())
sketch9.addGeometry(Part.Circle(App.Vector(7.5, -25.3, 0), App.Vector(0, 0, 1), 3.5), False)
sketch9.addGeometry(Part.Circle(App.Vector(7.5, -7.3, 0), App.Vector(0, 0, 1), 3.5), False)
sketch9.addGeometry(Part.Circle(App.Vector(43.5, -25.3, 0), App.Vector(0, 0, 1), 3.5), False)
sketch9.addGeometry(Part.Circle(App.Vector(43.5, -7.3, 0), App.Vector(0, 0, 1), 3.5), False)
sketch9.addGeometry(Part.Circle(App.Vector(25.5, -25.3, 0), App.Vector(0, 0, 1), 3.5), False)
sketch9.addGeometry(Part.Circle(App.Vector(25.5, -7.3, 0), App.Vector(0, 0, 1), 3.5), False)
sketch9.addGeometry(Part.Circle(App.Vector(16.5, -16.3, 0), App.Vector(0, 0, 1), 3.5), False)
sketch9.addGeometry(Part.Circle(App.Vector(34.5, -16.3, 0), App.Vector(0, 0, 1), 3.5), False)
sketch9.addGeometry(Part.Circle(App.Vector(52.5, -16.3, 0), App.Vector(0, 0, 1), 3.5), False)
sketch9.addConstraint(Sketcher.Constraint("Equal", 0, 1))
sketch9.addConstraint(Sketcher.Constraint("Equal", 1, 2))
sketch9.addConstraint(Sketcher.Constraint("Equal", 2, 3))
sketch9.addConstraint(Sketcher.Constraint("Equal", 3, 4))
sketch9.addConstraint(Sketcher.Constraint("Equal", 4, 5))
sketch9.addConstraint(Sketcher.Constraint("Equal", 5, 6))
sketch9.addConstraint(Sketcher.Constraint("Equal", 6, 7))
sketch9.addConstraint(Sketcher.Constraint("Equal", 7, 8))
sketch9.addConstraint(Sketcher.Constraint("Horizontal", 0, 3, 2, 3))
sketch9.addConstraint(Sketcher.Constraint("Horizontal", 1, 3, 3, 3))
sketch9.addConstraint(Sketcher.Constraint("Horizontal", 2, 3, 4, 3))
sketch9.addConstraint(Sketcher.Constraint("Horizontal", 3, 3, 5, 3))
sketch9.addConstraint(Sketcher.Constraint("Horizontal", 6, 3, 7, 3))
sketch9.addConstraint(Sketcher.Constraint("Horizontal", 7, 3, 8, 3))
sketch9.addConstraint(Sketcher.Constraint("Vertical", 0, 3, 1, 3))
sketch9.addConstraint(Sketcher.Constraint("Vertical", 2, 3, 3, 3))
sketch9.addConstraint(Sketcher.Constraint("Vertical", 4, 3, 5, 3))
sketch9.addConstraint(Sketcher.Constraint("Diameter", 0, 7.0))
sketch9.addConstraint(Sketcher.Constraint("DistanceY", 0, 3, 1, 3, 18.0))
sketch9.addConstraint(Sketcher.Constraint("DistanceX", 0, 3, 2, 3, 36.0))
sketch9.addConstraint(Sketcher.Constraint("DistanceX", 0, 3, 4, 3, 18.0))
sketch9.addConstraint(Sketcher.Constraint("DistanceX", 0, 3, 6, 3, 9.0))
sketch9.addConstraint(Sketcher.Constraint("DistanceY", 0, 3, 6, 3, 9.0))
sketch9.addConstraint(Sketcher.Constraint("DistanceX", 7, 3, 2, 3, 9.0))
sketch9.addConstraint(Sketcher.Constraint("DistanceX", 2, 3, 8, 3, 9.0))
sketch9.addConstraint(Sketcher.Constraint("DistanceX", -1, 1, 0, 3, 7.5))
sketch9.addConstraint(Sketcher.Constraint("DistanceY", 0, 3, -1, 1, 25.306528))
sketch9.setExpression("Constraints[17]", "Params.sketch9_diameter")
pocket5 = body.newObject("PartDesign::Pocket", "Pocket004")
pocket5.Profile = sketch9
pocket5.setExpression("Length", "Params.pocket5_length")
pocket5.Reversed = True
doc.recompute()

fillet = body.newObject("PartDesign::Fillet", "Fillet")
fillet.Base = (pocket5, edges_at(pocket5, [
    (27.75, -25.655, 28.693),
    (0, 11.345, -58.557),
    (42.75, -25.655, -61.307),
    (42.75, -25.655, 28.693),
    (0, -12.155, -71.307),
    (0, -35.655, -16.307),
    (0, -12.155, 38.693),
    (5, 11.345, 38.693),
    (5, 11.345, 13.193),
    (5, -25.655, 13.193),
    (5, -25.655, -45.807),
    (5, 11.345, -45.807),
    (5, 11.345, -71.307),
    (10, -35.655, -71.307),
    (10, -35.655, 38.693),
    (10, 11.345, -58.557),
    (10, -7.155, -45.807),
    (0, -9.155, 35.943),
    (10, -25.655, -39.057),
    (0, 3.345, 23.443),
    (60, -20.655, 18.693),
    (30, -30.655, 18.693),
    (30, -30.655, -51.307),
    (10, -25.655, 6.443),
    (50, -28.155, -51.307),
    (10, -7.155, 13.193),
    (50, -28.155, 18.693),
    (60, -25.655, -16.307),
    (55, -25.655, -51.307),
    (50, -25.655, -41.807),
    (30, -25.655, -32.307),
    (0, -9.155, -64.057),
    (30, -25.655, -0.307),
    (50, -25.655, 9.193),
    (55, -25.655, 18.693),
    (25.5, -35.655, -28.807),
    (25.5, -25.655, -28.807),
    (43.5, -35.655, -10.807),
    (43.5, -25.655, -10.807),
    (43.5, -35.655, -28.807),
    (43.5, -25.655, -28.807),
    (10, 11.345, 25.943),
    (0, 3.345, -51.557),
    (7.5, -35.655, -10.807),
    (7.5, -25.655, -10.807),
    (25.5, -35.655, -10.807),
    (25.5, -25.655, -10.807),
    (16.5, -35.655, -19.807),
    (16.5, -25.655, -19.807),
    (34.5, -35.655, -19.807),
    (34.5, -25.655, -19.807),
    (52.5, -35.655, -19.807),
    (52.5, -25.655, -19.807),
    (7.5, -35.655, -28.807),
    (7.5, -25.655, -28.807),
    (40, -15.655, 28.693),
    (40, -35.655, 28.693),
    (40, -35.655, -61.307),
    (10, -15.655, -61.307),
    (40, -15.655, -61.307),
    (10, -23.155, -51.307),
    (35, -15.655, -51.307),
    (10, -30.655, -41.807),
    (10, -23.155, 18.693),
    (10, -15.655, 28.693),
    (35, -15.655, 18.693),
    (60, -25.655, 28.693),
    (60, -35.655, -16.307),
    (10, -2.155, 38.693),
    (60, -25.655, -61.307),
    (60, -15.655, -56.307),
    (60, -20.655, -51.307),
    (60, -15.655, 23.693),
    (15, -15.655, 38.693),
    (20, -25.655, 28.693),
    (20, -15.655, 33.693),
    (20, -25.655, 38.693),
    (20, -35.655, 33.693),
    (10, -2.155, -71.307),
    (15, -15.655, -71.307),
    (20, -25.655, -61.307),
    (20, -35.655, -66.307),
    (20, -25.655, -71.307),
    (20, -15.655, -66.307),
    (0, 11.345, 25.943),
    (0, -7.155, 13.193),
    (0, -25.655, -16.307),
    (0, -7.155, -45.807),
    (27.75, -25.655, -61.307),
]))
fillet.setExpression("Radius", "Params.fillet_radius")

doc.recompute()
